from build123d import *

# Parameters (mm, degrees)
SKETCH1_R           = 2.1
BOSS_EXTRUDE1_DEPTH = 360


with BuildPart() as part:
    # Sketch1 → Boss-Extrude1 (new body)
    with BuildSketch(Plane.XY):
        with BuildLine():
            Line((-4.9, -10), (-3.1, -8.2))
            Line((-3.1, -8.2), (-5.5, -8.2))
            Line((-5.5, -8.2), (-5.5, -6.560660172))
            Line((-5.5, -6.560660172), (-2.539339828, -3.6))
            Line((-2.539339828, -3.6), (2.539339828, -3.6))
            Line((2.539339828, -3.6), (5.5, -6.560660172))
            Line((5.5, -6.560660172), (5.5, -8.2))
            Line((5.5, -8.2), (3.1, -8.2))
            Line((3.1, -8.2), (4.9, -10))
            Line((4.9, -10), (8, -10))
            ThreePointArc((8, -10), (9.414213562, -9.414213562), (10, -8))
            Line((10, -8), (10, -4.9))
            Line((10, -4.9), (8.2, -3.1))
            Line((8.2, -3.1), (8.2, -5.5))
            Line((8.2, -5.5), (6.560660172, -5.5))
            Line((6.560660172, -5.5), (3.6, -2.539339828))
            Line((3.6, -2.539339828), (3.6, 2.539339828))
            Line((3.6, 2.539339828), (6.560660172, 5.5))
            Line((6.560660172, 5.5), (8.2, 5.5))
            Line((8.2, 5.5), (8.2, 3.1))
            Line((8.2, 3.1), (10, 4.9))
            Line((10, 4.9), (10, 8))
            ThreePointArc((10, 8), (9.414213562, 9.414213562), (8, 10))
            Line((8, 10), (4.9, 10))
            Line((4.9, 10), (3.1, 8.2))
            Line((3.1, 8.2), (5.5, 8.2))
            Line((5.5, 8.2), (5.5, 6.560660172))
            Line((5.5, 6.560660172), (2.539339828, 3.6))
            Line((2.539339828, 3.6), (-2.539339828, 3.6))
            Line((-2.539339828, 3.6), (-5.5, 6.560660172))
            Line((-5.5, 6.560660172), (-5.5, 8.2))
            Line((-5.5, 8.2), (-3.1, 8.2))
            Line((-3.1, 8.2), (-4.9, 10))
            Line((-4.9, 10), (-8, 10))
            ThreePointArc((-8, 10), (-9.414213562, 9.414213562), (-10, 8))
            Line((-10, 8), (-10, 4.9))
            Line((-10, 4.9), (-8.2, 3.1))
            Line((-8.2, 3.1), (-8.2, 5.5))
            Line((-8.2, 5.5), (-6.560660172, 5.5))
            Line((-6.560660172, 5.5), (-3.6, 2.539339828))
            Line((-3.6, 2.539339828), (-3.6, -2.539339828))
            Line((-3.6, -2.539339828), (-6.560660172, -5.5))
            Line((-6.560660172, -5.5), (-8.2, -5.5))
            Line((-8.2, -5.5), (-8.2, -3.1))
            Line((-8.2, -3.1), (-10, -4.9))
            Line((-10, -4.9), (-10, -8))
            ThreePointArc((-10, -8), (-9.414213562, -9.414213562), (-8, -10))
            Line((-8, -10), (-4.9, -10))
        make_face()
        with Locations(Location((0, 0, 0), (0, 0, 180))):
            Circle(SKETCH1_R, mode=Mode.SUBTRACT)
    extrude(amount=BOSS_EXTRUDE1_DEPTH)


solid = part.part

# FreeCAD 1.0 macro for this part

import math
import FreeCAD as App
import Part
import Sketcher

doc = App.newDocument("Part")
params = doc.addObject("Spreadsheet::Sheet", "Params")
for row, (alias, value) in enumerate([
    ("sketch1_radius", "2 mm"),
    ("sketch1_diameter", "4.2 mm"),
    ("sketch1_width", "2.4 mm"),
    ("sketch1_width2", "3.1 mm"),
    ("pad1_length", "360 mm"),
], start=1):
    params.set(f"A{row}", alias)
    params.set(f"B{row}", "=" + value)
    params.setAlias(f"B{row}", alias)

body = doc.addObject("PartDesign::Body", "Body")

sketch1 = body.newObject("Sketcher::SketchObject", "Sketch")
sketch1.AttachmentSupport = (doc.getObject("XY_Plane"), [""])
sketch1.MapMode = "FlatFace"
sketch1.addGeometry([
    Part.LineSegment(App.Vector(-4.9, -10, 0), App.Vector(-3.1, -8.2, 0)),
    Part.LineSegment(App.Vector(-3.1, -8.2, 0), App.Vector(-5.5, -8.2, 0)),
    Part.LineSegment(App.Vector(-5.5, -8.2, 0), App.Vector(-5.5, -6.6, 0)),
    Part.LineSegment(App.Vector(-5.5, -6.6, 0), App.Vector(-2.5, -3.6, 0)),
    Part.LineSegment(App.Vector(-2.5, -3.6, 0), App.Vector(2.5, -3.6, 0)),
    Part.LineSegment(App.Vector(2.5, -3.6, 0), App.Vector(5.5, -6.6, 0)),
    Part.LineSegment(App.Vector(5.5, -6.6, 0), App.Vector(5.5, -8.2, 0)),
    Part.LineSegment(App.Vector(5.5, -8.2, 0), App.Vector(3.1, -8.2, 0)),
    Part.LineSegment(App.Vector(3.1, -8.2, 0), App.Vector(4.9, -10, 0)),
    Part.LineSegment(App.Vector(4.9, -10, 0), App.Vector(8, -10, 0)),
    Part.ArcOfCircle(Part.Circle(App.Vector(8, -8, 0), App.Vector(0, 0, 1), 2), math.radians(-90), math.radians(0)),
    Part.LineSegment(App.Vector(10, -8, 0), App.Vector(10, -4.9, 0)),
    Part.LineSegment(App.Vector(10, -4.9, 0), App.Vector(8.2, -3.1, 0)),
    Part.LineSegment(App.Vector(8.2, -3.1, 0), App.Vector(8.2, -5.5, 0)),
    Part.LineSegment(App.Vector(8.2, -5.5, 0), App.Vector(6.6, -5.5, 0)),
    Part.LineSegment(App.Vector(6.6, -5.5, 0), App.Vector(3.6, -2.5, 0)),
    Part.LineSegment(App.Vector(3.6, -2.5, 0), App.Vector(3.6, 2.5, 0)),
    Part.LineSegment(App.Vector(3.6, 2.5, 0), App.Vector(6.6, 5.5, 0)),
    Part.LineSegment(App.Vector(6.6, 5.5, 0), App.Vector(8.2, 5.5, 0)),
    Part.LineSegment(App.Vector(8.2, 5.5, 0), App.Vector(8.2, 3.1, 0)),
    Part.LineSegment(App.Vector(8.2, 3.1, 0), App.Vector(10, 4.9, 0)),
    Part.LineSegment(App.Vector(10, 4.9, 0), App.Vector(10, 8, 0)),
    Part.ArcOfCircle(Part.Circle(App.Vector(8, 8, 0), App.Vector(0, 0, 1), 2), math.radians(0), math.radians(90)),
    Part.LineSegment(App.Vector(8, 10, 0), App.Vector(4.9, 10, 0)),
    Part.LineSegment(App.Vector(4.9, 10, 0), App.Vector(3.1, 8.2, 0)),
    Part.LineSegment(App.Vector(3.1, 8.2, 0), App.Vector(5.5, 8.2, 0)),
    Part.LineSegment(App.Vector(5.5, 8.2, 0), App.Vector(5.5, 6.6, 0)),
    Part.LineSegment(App.Vector(5.5, 6.6, 0), App.Vector(2.5, 3.6, 0)),
    Part.LineSegment(App.Vector(2.5, 3.6, 0), App.Vector(-2.5, 3.6, 0)),
    Part.LineSegment(App.Vector(-2.5, 3.6, 0), App.Vector(-5.5, 6.6, 0)),
    Part.LineSegment(App.Vector(-5.5, 6.6, 0), App.Vector(-5.5, 8.2, 0)),
    Part.LineSegment(App.Vector(-5.5, 8.2, 0), App.Vector(-3.1, 8.2, 0)),
    Part.LineSegment(App.Vector(-3.1, 8.2, 0), App.Vector(-4.9, 10, 0)),
    Part.LineSegment(App.Vector(-4.9, 10, 0), App.Vector(-8, 10, 0)),
    Part.ArcOfCircle(Part.Circle(App.Vector(-8, 8, 0), App.Vector(0, 0, 1), 2), math.radians(90), math.radians(180)),
    Part.LineSegment(App.Vector(-10, 8, 0), App.Vector(-10, 4.9, 0)),
    Part.LineSegment(App.Vector(-10, 4.9, 0), App.Vector(-8.2, 3.1, 0)),
    Part.LineSegment(App.Vector(-8.2, 3.1, 0), App.Vector(-8.2, 5.5, 0)),
    Part.LineSegment(App.Vector(-8.2, 5.5, 0), App.Vector(-6.6, 5.5, 0)),
    Part.LineSegment(App.Vector(-6.6, 5.5, 0), App.Vector(-3.6, 2.5, 0)),
    Part.LineSegment(App.Vector(-3.6, 2.5, 0), App.Vector(-3.6, -2.5, 0)),
    Part.LineSegment(App.Vector(-3.6, -2.5, 0), App.Vector(-6.6, -5.5, 0)),
    Part.LineSegment(App.Vector(-6.6, -5.5, 0), App.Vector(-8.2, -5.5, 0)),
    Part.LineSegment(App.Vector(-8.2, -5.5, 0), App.Vector(-8.2, -3.1, 0)),
    Part.LineSegment(App.Vector(-8.2, -3.1, 0), App.Vector(-10, -4.9, 0)),
    Part.LineSegment(App.Vector(-10, -4.9, 0), App.Vector(-10, -8, 0)),
    Part.ArcOfCircle(Part.Circle(App.Vector(-8, -8, 0), App.Vector(0, 0, 1), 2), math.radians(-180), math.radians(-90)),
    Part.LineSegment(App.Vector(-8, -10, 0), App.Vector(-4.9, -10, 0)),
    Part.Circle(App.Vector(0, 0, 0), App.Vector(0, 0, 1), 2.1),
], False)
sketch1.addConstraint([
    Sketcher.Constraint("Coincident", 0, 2, 1, 1),
    Sketcher.Constraint("Coincident", 1, 2, 2, 1),
    Sketcher.Constraint("Coincident", 2, 2, 3, 1),
    Sketcher.Constraint("Coincident", 3, 2, 4, 1),
    Sketcher.Constraint("Coincident", 4, 2, 5, 1),
    Sketcher.Constraint("Coincident", 5, 2, 6, 1),
    Sketcher.Constraint("Coincident", 6, 2, 7, 1),
    Sketcher.Constraint("Coincident", 7, 2, 8, 1),
    Sketcher.Constraint("Coincident", 8, 2, 9, 1),
    Sketcher.Constraint("Tangent", 9, 2, 10, 1),
    Sketcher.Constraint("Tangent", 10, 2, 11, 1),
    Sketcher.Constraint("Coincident", 11, 2, 12, 1),
    Sketcher.Constraint("Coincident", 12, 2, 13, 1),
    Sketcher.Constraint("Coincident", 13, 2, 14, 1),
    Sketcher.Constraint("Coincident", 14, 2, 15, 1),
    Sketcher.Constraint("Coincident", 15, 2, 16, 1),
    Sketcher.Constraint("Coincident", 16, 2, 17, 1),
    Sketcher.Constraint("Coincident", 17, 2, 18, 1),
    Sketcher.Constraint("Coincident", 18, 2, 19, 1),
    Sketcher.Constraint("Coincident", 19, 2, 20, 1),
    Sketcher.Constraint("Coincident", 20, 2, 21, 1),
    Sketcher.Constraint("Tangent", 21, 2, 22, 1),
    Sketcher.Constraint("Tangent", 22, 2, 23, 1),
    Sketcher.Constraint("Coincident", 23, 2, 24, 1),
    Sketcher.Constraint("Coincident", 24, 2, 25, 1),
    Sketcher.Constraint("Coincident", 25, 2, 26, 1),
    Sketcher.Constraint("Coincident", 26, 2, 27, 1),
    Sketcher.Constraint("Coincident", 27, 2, 28, 1),
    Sketcher.Constraint("Coincident", 28, 2, 29, 1),
    Sketcher.Constraint("Coincident", 29, 2, 30, 1),
    Sketcher.Constraint("Coincident", 30, 2, 31, 1),
    Sketcher.Constraint("Coincident", 31, 2, 32, 1),
    Sketcher.Constraint("Coincident", 32, 2, 33, 1),
    Sketcher.Constraint("Tangent", 33, 2, 34, 1),
    Sketcher.Constraint("Tangent", 34, 2, 35, 1),
    Sketcher.Constraint("Coincident", 35, 2, 36, 1),
    Sketcher.Constraint("Coincident", 36, 2, 37, 1),
    Sketcher.Constraint("Coincident", 37, 2, 38, 1),
    Sketcher.Constraint("Coincident", 38, 2, 39, 1),
    Sketcher.Constraint("Coincident", 39, 2, 40, 1),
    Sketcher.Constraint("Coincident", 40, 2, 41, 1),
    Sketcher.Constraint("Coincident", 41, 2, 42, 1),
    Sketcher.Constraint("Coincident", 42, 2, 43, 1),
    Sketcher.Constraint("Coincident", 43, 2, 44, 1),
    Sketcher.Constraint("Coincident", 44, 2, 45, 1),
    Sketcher.Constraint("Tangent", 45, 2, 46, 1),
    Sketcher.Constraint("Tangent", 46, 2, 47, 1),
    Sketcher.Constraint("Coincident", 47, 2, 0, 1),
    Sketcher.Constraint("Horizontal", 1),
    Sketcher.Constraint("Vertical", 2),
    Sketcher.Constraint("Horizontal", 4),
    Sketcher.Constraint("Vertical", 6),
    Sketcher.Constraint("Horizontal", 7),
    Sketcher.Constraint("Horizontal", 9),
    Sketcher.Constraint("Vertical", 11),
    Sketcher.Constraint("Vertical", 13),
    Sketcher.Constraint("Horizontal", 14),
    Sketcher.Constraint("Vertical", 16),
    Sketcher.Constraint("Horizontal", 18),
    Sketcher.Constraint("Vertical", 19),
    Sketcher.Constraint("Vertical", 21),
    Sketcher.Constraint("Horizontal", 23),
    Sketcher.Constraint("Horizontal", 25),
    Sketcher.Constraint("Vertical", 26),
    Sketcher.Constraint("Horizontal", 28),
    Sketcher.Constraint("Vertical", 30),
    Sketcher.Constraint("Horizontal", 31),
    Sketcher.Constraint("Horizontal", 33),
    Sketcher.Constraint("Vertical", 35),
    Sketcher.Constraint("Vertical", 37),
    Sketcher.Constraint("Horizontal", 38),
    Sketcher.Constraint("Vertical", 40),
    Sketcher.Constraint("Horizontal", 42),
    Sketcher.Constraint("Vertical", 43),
    Sketcher.Constraint("Vertical", 45),
    Sketcher.Constraint("Horizontal", 47),
    Sketcher.Constraint("Coincident", 48, 3, -1, 1),
    Sketcher.Constraint("Equal", 10, 22),
    Sketcher.Constraint("Equal", 22, 34),
    Sketcher.Constraint("Equal", 34, 46),
    Sketcher.Constraint("Symmetric", 10, 3, 34, 3, -1, 1),
    Sketcher.Constraint("Symmetric", 22, 3, 46, 3, -1, 1),
    Sketcher.Constraint("Symmetric", 0, 2, 24, 2, -1, 1),
    Sketcher.Constraint("Symmetric", 2, 2, 26, 2, -1, 1),
    Sketcher.Constraint("Symmetric", 3, 2, 27, 2, -1, 1),
    Sketcher.Constraint("Symmetric", 5, 2, 29, 2, -1, 1),
    Sketcher.Constraint("Symmetric", 7, 2, 31, 2, -1, 1),
    Sketcher.Constraint("Symmetric", 12, 2, 36, 2, -1, 1),
    Sketcher.Constraint("Symmetric", 14, 2, 38, 2, -1, 1),
    Sketcher.Constraint("Symmetric", 15, 2, 39, 2, -1, 1),
    Sketcher.Constraint("Symmetric", 17, 2, 41, 2, -1, 1),
    Sketcher.Constraint("Symmetric", 19, 2, 43, 2, -1, 1),
    Sketcher.Constraint("Symmetric", 22, 3, 34, 3, -2),
    Sketcher.Constraint("Symmetric", 2, 2, 5, 2, -2),
    Sketcher.Constraint("Symmetric", 0, 2, 7, 2, -2),
    Sketcher.Constraint("Symmetric", 19, 2, 36, 2, -2),
    Sketcher.Constraint("Symmetric", 17, 2, 38, 2, -2),
    Sketcher.Constraint("Parallel", 0, 3),
    Sketcher.Constraint("Perpendicular", 3, 5),
    Sketcher.Constraint("Parallel", 5, 8),
    Sketcher.Constraint("Parallel", 8, 12),
    Sketcher.Constraint("Parallel", 12, 15),
    Sketcher.Constraint("Perpendicular", 15, 17),
    Sketcher.Constraint("Parallel", 17, 20),
    Sketcher.Constraint("Parallel", 20, 24),
    Sketcher.Constraint("Perpendicular", 27, 29),
    Sketcher.Constraint("Parallel", 29, 32),
    Sketcher.Constraint("Parallel", 32, 36),
    Sketcher.Constraint("Perpendicular", 39, 41),
    Sketcher.Constraint("Parallel", 41, 44),
    Sketcher.Constraint("Horizontal", 20, 2, 35, 2),
    Sketcher.Constraint("Equal", 42, 2),
    Sketcher.Constraint("Equal", 47, 11),
    Sketcher.Constraint("Equal", 31, 13),
    Sketcher.Constraint("Equal", 28, 16),
    Sketcher.Constraint("Equal", 8, 12),
    Sketcher.Constraint("Equal", 5, 15),
    Sketcher.Constraint("Radius", 10, 2.0),
    Sketcher.Constraint("Diameter", 48, 4.2),
    Sketcher.Constraint("DistanceX", 1, 2, 1, 1, 2.4),
    Sketcher.Constraint("DistanceX", 9, 1, 9, 2, 3.1),
    Sketcher.Constraint("DistanceX", -1, 1, 10, 3, 8.0),
    Sketcher.Constraint("DistanceX", 0, 2, -1, 1, 3.1),
    Sketcher.Constraint("DistanceY", 3, 2, -1, 1, 3.6),
    Sketcher.Constraint("DistanceX", 4, 1, 4, 2, 5.07868),
])
sketch1.setExpression("Constraints[117]", "Params.sketch1_radius")
sketch1.setExpression("Constraints[118]", "Params.sketch1_diameter")
sketch1.setExpression("Constraints[119]", "Params.sketch1_width")
sketch1.setExpression("Constraints[120]", "Params.sketch1_width2")
pad1 = body.newObject("PartDesign::Pad", "Pad")
pad1.Profile = sketch1
pad1.setExpression("Length", "Params.pad1_length")

doc.recompute()
